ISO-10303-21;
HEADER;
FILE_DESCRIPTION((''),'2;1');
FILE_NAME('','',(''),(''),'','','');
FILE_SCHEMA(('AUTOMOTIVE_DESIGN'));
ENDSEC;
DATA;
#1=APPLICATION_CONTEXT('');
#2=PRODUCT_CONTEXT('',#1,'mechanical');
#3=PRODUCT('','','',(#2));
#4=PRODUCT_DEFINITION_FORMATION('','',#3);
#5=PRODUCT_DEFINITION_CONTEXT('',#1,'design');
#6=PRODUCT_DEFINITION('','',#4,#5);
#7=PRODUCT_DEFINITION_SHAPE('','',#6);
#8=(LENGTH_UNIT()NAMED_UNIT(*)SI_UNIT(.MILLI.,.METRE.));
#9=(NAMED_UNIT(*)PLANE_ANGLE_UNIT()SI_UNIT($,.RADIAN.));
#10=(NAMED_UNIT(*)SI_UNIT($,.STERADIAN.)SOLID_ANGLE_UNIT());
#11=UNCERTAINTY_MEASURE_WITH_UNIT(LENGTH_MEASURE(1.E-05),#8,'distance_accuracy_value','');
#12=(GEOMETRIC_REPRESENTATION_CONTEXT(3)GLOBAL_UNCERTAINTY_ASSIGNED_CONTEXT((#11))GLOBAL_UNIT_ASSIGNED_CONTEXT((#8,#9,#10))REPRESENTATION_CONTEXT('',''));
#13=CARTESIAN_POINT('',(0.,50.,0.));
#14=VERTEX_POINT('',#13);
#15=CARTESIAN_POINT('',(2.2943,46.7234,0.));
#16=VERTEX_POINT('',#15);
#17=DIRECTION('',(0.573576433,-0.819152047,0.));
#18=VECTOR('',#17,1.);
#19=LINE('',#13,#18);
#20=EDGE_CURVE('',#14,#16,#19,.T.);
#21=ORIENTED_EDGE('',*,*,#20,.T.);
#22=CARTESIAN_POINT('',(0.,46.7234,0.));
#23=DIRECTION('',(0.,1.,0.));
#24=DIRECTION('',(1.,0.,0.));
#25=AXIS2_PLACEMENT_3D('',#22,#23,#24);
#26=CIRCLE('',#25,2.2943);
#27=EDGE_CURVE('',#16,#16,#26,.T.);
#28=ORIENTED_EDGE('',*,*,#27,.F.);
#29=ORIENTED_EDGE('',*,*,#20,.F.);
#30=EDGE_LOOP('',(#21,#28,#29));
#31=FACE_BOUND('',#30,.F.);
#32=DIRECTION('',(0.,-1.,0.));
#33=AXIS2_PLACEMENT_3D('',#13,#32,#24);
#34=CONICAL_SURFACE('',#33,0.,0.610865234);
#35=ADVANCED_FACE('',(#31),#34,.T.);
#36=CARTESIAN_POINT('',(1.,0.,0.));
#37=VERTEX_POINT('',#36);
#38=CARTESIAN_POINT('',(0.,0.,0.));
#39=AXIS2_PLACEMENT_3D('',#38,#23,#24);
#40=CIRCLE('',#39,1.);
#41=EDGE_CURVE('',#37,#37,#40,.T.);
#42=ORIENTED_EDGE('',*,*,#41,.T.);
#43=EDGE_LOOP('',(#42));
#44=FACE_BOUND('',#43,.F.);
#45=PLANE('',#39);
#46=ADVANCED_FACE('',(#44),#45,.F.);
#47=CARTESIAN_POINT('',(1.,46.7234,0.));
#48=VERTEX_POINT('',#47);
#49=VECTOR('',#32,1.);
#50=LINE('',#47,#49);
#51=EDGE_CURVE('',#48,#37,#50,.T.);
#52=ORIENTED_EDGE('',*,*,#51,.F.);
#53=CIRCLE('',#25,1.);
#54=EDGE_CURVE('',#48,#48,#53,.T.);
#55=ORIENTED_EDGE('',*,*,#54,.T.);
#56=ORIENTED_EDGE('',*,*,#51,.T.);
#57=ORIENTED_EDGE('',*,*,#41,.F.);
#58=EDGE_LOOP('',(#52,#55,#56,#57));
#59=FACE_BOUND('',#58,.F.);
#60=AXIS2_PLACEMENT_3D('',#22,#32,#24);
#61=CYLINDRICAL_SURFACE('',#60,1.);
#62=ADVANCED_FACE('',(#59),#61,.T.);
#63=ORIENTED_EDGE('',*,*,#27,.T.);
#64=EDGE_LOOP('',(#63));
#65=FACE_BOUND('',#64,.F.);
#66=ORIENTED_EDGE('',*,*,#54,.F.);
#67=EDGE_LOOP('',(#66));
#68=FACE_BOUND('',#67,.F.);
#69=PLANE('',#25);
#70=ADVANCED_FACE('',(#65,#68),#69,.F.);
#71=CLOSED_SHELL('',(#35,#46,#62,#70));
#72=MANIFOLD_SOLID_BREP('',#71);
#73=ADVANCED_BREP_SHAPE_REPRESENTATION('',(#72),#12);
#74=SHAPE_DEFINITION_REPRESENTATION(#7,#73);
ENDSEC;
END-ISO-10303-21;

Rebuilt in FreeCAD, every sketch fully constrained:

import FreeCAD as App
import Part
import Sketcher
from FreeCAD import Vector
Q = App.Units.Quantity


def add_polygon(sketch, points):
    """Adds a closed chain of lines whose ends are joined by coincident constraints."""
    first, n = sketch.GeometryCount, len(points)
    for a, b in zip(points, points[1:] + points[:1]):
        sketch.addGeometry(Part.LineSegment(App.Vector(*a, 0), App.Vector(*b, 0)), False)
    for i in range(n):
        sketch.addConstraint(Sketcher.Constraint("Coincident", first + i, 2, first + (i + 1) % n, 1))

doc = App.newDocument("Part")
body = doc.addObject("PartDesign::Body", "Body")

sketch1 = doc.addObject("Sketcher::SketchObject", "Sketch")
body.addObject(sketch1)
sketch1.AttachmentSupport = (doc.XY_Plane, [""])
sketch1.MapMode = "FlatFace"
add_polygon(sketch1, [(0, 50), (0, 0), (1, 0), (1, 46.7), (2.3, 46.7)])
sketch1.addConstraint(Sketcher.Constraint("Vertical", 0))
sketch1.addConstraint(Sketcher.Constraint("Horizontal", 1))
sketch1.addConstraint(Sketcher.Constraint("Vertical", 2))
sketch1.addConstraint(Sketcher.Constraint("Horizontal", 3))
sketch1.addConstraint(Sketcher.Constraint("Coincident", 0, 2, -1, 1))
sketch1.addConstraint(Sketcher.Constraint("DistanceY", 0, 2, 0, 1, 50.0))
sketch1.addConstraint(Sketcher.Constraint("Distance", 4, 4.0))
sketch1.addConstraint(Sketcher.Constraint("DistanceX", 1, 1, 1, 2, 1.0))
sketch1.addConstraint(Sketcher.Constraint("Angle", 4, Q("125 deg")))
revolution = doc.addObject("PartDesign::Revolution", "Revolution")
body.addObject(revolution)
revolution.Profile = sketch1
revolution.ReferenceAxis = (sketch1, ["V_Axis"])
revolution.Angle = 360

doc.recompute()
